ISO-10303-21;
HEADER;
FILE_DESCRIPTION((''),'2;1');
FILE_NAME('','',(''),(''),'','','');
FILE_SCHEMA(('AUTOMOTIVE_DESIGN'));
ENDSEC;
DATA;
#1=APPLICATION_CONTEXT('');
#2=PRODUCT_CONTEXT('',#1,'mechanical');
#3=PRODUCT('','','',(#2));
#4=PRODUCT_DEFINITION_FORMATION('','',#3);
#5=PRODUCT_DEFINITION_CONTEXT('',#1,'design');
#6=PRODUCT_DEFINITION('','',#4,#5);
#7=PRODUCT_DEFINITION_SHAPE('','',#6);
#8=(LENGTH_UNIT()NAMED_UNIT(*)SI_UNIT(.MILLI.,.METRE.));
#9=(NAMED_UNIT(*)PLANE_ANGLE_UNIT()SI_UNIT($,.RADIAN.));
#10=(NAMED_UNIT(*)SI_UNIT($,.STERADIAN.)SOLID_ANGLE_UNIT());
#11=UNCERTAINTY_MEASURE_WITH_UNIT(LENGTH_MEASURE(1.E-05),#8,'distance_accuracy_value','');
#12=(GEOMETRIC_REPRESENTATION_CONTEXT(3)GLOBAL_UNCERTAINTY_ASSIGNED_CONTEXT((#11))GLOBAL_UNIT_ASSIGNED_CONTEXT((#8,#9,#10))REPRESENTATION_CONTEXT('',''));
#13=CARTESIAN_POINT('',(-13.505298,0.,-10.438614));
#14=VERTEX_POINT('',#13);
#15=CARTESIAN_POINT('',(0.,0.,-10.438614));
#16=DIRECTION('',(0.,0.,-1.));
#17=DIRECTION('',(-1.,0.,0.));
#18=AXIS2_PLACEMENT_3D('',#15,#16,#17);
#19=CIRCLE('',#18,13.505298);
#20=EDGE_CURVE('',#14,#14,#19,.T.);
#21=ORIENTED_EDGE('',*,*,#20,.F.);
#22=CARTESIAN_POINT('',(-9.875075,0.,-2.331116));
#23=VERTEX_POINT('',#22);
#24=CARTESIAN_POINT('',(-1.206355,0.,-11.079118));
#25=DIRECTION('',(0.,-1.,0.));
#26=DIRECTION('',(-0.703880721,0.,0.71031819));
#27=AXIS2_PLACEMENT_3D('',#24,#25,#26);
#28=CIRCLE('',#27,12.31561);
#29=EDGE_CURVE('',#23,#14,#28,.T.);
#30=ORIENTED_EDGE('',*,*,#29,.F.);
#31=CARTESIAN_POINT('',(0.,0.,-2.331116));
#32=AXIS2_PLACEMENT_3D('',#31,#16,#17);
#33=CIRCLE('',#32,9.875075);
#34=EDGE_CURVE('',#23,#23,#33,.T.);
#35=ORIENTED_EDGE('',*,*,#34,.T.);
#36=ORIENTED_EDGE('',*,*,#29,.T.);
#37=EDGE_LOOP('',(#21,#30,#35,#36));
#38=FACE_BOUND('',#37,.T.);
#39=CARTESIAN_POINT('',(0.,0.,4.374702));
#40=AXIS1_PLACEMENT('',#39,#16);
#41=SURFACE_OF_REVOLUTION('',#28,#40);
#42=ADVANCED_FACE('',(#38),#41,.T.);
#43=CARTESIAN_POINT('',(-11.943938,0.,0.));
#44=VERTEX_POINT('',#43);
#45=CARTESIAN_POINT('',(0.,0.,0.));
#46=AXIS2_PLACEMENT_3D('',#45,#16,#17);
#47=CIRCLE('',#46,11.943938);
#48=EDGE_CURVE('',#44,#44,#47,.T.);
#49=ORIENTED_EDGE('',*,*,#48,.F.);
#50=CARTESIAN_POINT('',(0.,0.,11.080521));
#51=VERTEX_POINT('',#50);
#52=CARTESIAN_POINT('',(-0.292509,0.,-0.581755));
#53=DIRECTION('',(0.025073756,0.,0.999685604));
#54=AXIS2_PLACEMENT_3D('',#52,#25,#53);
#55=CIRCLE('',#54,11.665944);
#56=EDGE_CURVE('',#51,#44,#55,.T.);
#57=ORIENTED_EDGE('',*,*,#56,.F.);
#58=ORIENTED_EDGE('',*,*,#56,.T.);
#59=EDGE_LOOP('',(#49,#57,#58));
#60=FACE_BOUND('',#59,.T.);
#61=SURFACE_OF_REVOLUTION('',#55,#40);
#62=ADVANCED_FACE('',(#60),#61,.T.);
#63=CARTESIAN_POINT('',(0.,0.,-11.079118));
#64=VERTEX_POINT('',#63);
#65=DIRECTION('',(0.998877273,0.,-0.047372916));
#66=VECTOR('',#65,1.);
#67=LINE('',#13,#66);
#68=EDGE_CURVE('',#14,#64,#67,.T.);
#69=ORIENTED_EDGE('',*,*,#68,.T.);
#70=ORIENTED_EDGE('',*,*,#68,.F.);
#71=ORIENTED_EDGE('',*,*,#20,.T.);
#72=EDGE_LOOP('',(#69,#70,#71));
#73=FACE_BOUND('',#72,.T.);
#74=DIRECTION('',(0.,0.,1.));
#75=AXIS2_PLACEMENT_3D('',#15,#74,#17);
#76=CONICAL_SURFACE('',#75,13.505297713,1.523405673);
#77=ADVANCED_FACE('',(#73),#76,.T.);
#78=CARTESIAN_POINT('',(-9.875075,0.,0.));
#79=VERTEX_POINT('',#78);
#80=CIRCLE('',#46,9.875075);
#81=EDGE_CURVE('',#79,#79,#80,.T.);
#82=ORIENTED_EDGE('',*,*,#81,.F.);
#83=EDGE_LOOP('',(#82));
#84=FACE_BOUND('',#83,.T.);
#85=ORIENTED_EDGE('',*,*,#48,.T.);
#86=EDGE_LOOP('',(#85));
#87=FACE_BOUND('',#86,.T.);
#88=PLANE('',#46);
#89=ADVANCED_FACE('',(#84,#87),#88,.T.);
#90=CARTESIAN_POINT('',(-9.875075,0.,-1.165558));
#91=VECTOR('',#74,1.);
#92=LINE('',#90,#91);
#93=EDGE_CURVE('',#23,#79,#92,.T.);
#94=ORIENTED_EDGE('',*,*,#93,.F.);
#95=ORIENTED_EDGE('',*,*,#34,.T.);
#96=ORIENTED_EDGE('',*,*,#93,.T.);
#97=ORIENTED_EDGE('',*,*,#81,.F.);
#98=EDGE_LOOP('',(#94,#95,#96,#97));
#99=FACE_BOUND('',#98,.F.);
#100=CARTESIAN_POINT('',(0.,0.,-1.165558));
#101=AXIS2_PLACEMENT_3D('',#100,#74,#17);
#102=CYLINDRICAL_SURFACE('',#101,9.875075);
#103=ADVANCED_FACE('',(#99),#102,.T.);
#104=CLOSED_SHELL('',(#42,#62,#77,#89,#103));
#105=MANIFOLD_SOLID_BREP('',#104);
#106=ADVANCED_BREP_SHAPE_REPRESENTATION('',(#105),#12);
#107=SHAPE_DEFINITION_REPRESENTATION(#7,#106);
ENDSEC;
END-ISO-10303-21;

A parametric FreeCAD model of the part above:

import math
import FreeCAD as App
import Part
import Sketcher

V = App.Vector
Q = App.Units.Quantity

doc = App.newDocument("Part")
body = doc.addObject("PartDesign::Body", "Body")

# Sketch on XZ plane
sketch1 = doc.addObject("Sketcher::SketchObject", "Sketch")
body.addObject(sketch1)
sketch1.AttachmentSupport = (doc.XZ_Plane, [""])
sketch1.MapMode = "FlatFace"
sketch1.addGeometry([
    Part.LineSegment(V(0, 0, 0), V(0, 11.1, 0)),  # 0
    Part.ArcOfCircle(Part.Circle(V(-0.3, -0.6, 0), V(0, 0, 1), 11.7), math.radians(89), math.radians(177)),  # 1
    Part.LineSegment(V(-11.9, 0, 0), V(-9.9, 0, 0)),  # 2
    Part.LineSegment(V(-9.9, 0, 0), V(-9.9, -2.3, 0)),  # 3
    Part.ArcOfCircle(Part.Circle(V(-1.2, -11.1, 0), V(0, 0, 1), 12.3), math.radians(135), math.radians(177)),  # 4
    Part.LineSegment(V(-13.5, -10.4, 0), V(0, -11.1, 0)),  # 5
    Part.LineSegment(V(0, -11.1, 0), V(0, -2.3, 0)),  # 6
    Part.LineSegment(V(0, -2.3, 0), V(0, 0, 0)),  # 7
], False)
sketch1.addConstraint([
    Sketcher.Constraint("Coincident", 0, 2, 1, 1),
    Sketcher.Constraint("Coincident", 1, 2, 2, 1),
    Sketcher.Constraint("Coincident", 2, 2, 3, 1),
    Sketcher.Constraint("Coincident", 3, 2, 4, 1),
    Sketcher.Constraint("Coincident", 4, 2, 5, 1),
    Sketcher.Constraint("Coincident", 5, 2, 6, 1),
    Sketcher.Constraint("Coincident", 6, 2, 7, 1),
    Sketcher.Constraint("Coincident", 7, 2, 0, 1),
    Sketcher.Constraint("Vertical", 0),
    Sketcher.Constraint("Horizontal", 2),
    Sketcher.Constraint("Vertical", 3),
    Sketcher.Constraint("Vertical", 6),
    Sketcher.Constraint("Vertical", 7),
    Sketcher.Constraint("Coincident", 7, 2, -1, 1),
    Sketcher.Constraint("PointOnObject", 1, 2, -1),
    Sketcher.Constraint("Horizontal", 4, 3, 5, 2),
    Sketcher.Constraint("Horizontal", 3, 2, 6, 2),
    Sketcher.Constraint("DistanceY", 6, 1, 6, 2, Q("8.748002 mm")),
    Sketcher.Constraint("Radius", 4, Q("12.31561 mm")),
    Sketcher.Constraint("Radius", 1, Q("11.665944 mm")),
    Sketcher.Constraint("DistanceY", 0, 1, 0, 2, Q("11.080521 mm")),
    Sketcher.Constraint("DistanceX", 2, 1, 2, 2, Q("2.068863 mm")),
    Sketcher.Constraint("DistanceY", 3, 2, 3, 1, Q("2.331116 mm")),
    Sketcher.Constraint("DistanceX", 1, 3, -1, 1, Q("0.292509 mm")),
    Sketcher.Constraint("DistanceX", 4, 2, 1, 2, Q("1.56136 mm")),
])
revolution = doc.addObject("PartDesign::Revolution", "Revolution")
body.addObject(revolution)
revolution.Profile = sketch1
revolution.ReferenceAxis = (sketch1, ["V_Axis"])
revolution.Angle = 360

doc.recompute()
